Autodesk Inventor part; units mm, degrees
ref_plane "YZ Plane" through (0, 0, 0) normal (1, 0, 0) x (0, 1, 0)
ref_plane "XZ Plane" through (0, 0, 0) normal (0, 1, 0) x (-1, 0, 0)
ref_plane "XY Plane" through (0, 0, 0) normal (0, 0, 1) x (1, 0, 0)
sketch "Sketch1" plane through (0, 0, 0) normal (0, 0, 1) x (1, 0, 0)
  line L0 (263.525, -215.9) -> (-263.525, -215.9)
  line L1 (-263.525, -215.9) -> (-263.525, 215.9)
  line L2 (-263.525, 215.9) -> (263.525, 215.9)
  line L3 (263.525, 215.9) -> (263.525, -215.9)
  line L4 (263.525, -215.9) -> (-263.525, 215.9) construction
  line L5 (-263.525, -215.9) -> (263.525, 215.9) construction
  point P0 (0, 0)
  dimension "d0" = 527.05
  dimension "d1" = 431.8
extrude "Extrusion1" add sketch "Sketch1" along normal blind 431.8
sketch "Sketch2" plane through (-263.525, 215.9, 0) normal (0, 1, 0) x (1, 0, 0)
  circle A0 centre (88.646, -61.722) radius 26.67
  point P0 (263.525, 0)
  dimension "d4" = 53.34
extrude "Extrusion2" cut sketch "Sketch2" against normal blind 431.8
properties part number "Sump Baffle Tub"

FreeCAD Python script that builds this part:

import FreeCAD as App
import Part
import Sketcher
Q = App.Units.Quantity


def add_polygon(sketch, points):
    """Adds a closed chain of lines whose ends are joined by coincident constraints."""
    first, n = sketch.GeometryCount, len(points)
    for a, b in zip(points, points[1:] + points[:1]):
        sketch.addGeometry(Part.LineSegment(App.Vector(*a, 0), App.Vector(*b, 0)), False)
    for i in range(n):
        sketch.addConstraint(Sketcher.Constraint("Coincident", first + i, 2, first + (i + 1) % n, 1))

doc = App.newDocument("Part")
body = doc.addObject("PartDesign::Body", "Body")

# Sketch on XY plane
sketch1 = body.newObject("Sketcher::SketchObject", "Sketch")
sketch1.AttachmentSupport = (doc.getObject("XY_Plane"), [""])
sketch1.MapMode = "FlatFace"
add_polygon(sketch1, [(-263.525, -215.9), (263.525, -215.9), (263.525, 215.9), (-263.525, 215.9)])  # lines 0-3
sketch1.addConstraint(Sketcher.Constraint("Horizontal", 0))
sketch1.addConstraint(Sketcher.Constraint("Vertical", 1))
sketch1.addConstraint(Sketcher.Constraint("Horizontal", 2))
sketch1.addConstraint(Sketcher.Constraint("Vertical", 3))
sketch1.addConstraint(Sketcher.Constraint("Symmetric", 0, 2, 2, 2, -1, 1))
sketch1.addConstraint(Sketcher.Constraint("DistanceY", 1, 1, 1, 2, Q("17 in")))
sketch1.addConstraint(Sketcher.Constraint("DistanceX", 0, 1, 0, 2, Q("20.75 in")))
pad1 = body.newObject("PartDesign::Pad", "Pad")
pad1.Profile = sketch1
pad1.Length = Q("17 in")

# Sketch on XZ plane
sketch2 = body.newObject("Sketcher::SketchObject", "Sketch001")
sketch2.AttachmentSupport = (doc.getObject("XZ_Plane"), [""])
sketch2.MapMode = "FlatFace"
sketch2.AttachmentOffset = App.Placement(App.Vector(0, 0, -8.5 * 25.4), App.Rotation())
sketch2.addGeometry(Part.Circle(App.Vector(-174.879, 61.722, 0), App.Vector(0, 0, 1), 26.67), False)
sketch2.addConstraint(Sketcher.Constraint("Diameter", 0, Q("2.1 in")))
sketch2.addConstraint(Sketcher.Constraint("DistanceY", -1, 1, 0, 3, Q("2.43 in")))
sketch2.addConstraint(Sketcher.Constraint("DistanceX", 0, 3, -1, 1, Q("6.885 in")))
pocket1 = body.newObject("PartDesign::Pocket", "Pocket")
pocket1.Profile = sketch2
pocket1.Length = Q("17 in")
pocket1.Reversed = True

doc.recompute()
